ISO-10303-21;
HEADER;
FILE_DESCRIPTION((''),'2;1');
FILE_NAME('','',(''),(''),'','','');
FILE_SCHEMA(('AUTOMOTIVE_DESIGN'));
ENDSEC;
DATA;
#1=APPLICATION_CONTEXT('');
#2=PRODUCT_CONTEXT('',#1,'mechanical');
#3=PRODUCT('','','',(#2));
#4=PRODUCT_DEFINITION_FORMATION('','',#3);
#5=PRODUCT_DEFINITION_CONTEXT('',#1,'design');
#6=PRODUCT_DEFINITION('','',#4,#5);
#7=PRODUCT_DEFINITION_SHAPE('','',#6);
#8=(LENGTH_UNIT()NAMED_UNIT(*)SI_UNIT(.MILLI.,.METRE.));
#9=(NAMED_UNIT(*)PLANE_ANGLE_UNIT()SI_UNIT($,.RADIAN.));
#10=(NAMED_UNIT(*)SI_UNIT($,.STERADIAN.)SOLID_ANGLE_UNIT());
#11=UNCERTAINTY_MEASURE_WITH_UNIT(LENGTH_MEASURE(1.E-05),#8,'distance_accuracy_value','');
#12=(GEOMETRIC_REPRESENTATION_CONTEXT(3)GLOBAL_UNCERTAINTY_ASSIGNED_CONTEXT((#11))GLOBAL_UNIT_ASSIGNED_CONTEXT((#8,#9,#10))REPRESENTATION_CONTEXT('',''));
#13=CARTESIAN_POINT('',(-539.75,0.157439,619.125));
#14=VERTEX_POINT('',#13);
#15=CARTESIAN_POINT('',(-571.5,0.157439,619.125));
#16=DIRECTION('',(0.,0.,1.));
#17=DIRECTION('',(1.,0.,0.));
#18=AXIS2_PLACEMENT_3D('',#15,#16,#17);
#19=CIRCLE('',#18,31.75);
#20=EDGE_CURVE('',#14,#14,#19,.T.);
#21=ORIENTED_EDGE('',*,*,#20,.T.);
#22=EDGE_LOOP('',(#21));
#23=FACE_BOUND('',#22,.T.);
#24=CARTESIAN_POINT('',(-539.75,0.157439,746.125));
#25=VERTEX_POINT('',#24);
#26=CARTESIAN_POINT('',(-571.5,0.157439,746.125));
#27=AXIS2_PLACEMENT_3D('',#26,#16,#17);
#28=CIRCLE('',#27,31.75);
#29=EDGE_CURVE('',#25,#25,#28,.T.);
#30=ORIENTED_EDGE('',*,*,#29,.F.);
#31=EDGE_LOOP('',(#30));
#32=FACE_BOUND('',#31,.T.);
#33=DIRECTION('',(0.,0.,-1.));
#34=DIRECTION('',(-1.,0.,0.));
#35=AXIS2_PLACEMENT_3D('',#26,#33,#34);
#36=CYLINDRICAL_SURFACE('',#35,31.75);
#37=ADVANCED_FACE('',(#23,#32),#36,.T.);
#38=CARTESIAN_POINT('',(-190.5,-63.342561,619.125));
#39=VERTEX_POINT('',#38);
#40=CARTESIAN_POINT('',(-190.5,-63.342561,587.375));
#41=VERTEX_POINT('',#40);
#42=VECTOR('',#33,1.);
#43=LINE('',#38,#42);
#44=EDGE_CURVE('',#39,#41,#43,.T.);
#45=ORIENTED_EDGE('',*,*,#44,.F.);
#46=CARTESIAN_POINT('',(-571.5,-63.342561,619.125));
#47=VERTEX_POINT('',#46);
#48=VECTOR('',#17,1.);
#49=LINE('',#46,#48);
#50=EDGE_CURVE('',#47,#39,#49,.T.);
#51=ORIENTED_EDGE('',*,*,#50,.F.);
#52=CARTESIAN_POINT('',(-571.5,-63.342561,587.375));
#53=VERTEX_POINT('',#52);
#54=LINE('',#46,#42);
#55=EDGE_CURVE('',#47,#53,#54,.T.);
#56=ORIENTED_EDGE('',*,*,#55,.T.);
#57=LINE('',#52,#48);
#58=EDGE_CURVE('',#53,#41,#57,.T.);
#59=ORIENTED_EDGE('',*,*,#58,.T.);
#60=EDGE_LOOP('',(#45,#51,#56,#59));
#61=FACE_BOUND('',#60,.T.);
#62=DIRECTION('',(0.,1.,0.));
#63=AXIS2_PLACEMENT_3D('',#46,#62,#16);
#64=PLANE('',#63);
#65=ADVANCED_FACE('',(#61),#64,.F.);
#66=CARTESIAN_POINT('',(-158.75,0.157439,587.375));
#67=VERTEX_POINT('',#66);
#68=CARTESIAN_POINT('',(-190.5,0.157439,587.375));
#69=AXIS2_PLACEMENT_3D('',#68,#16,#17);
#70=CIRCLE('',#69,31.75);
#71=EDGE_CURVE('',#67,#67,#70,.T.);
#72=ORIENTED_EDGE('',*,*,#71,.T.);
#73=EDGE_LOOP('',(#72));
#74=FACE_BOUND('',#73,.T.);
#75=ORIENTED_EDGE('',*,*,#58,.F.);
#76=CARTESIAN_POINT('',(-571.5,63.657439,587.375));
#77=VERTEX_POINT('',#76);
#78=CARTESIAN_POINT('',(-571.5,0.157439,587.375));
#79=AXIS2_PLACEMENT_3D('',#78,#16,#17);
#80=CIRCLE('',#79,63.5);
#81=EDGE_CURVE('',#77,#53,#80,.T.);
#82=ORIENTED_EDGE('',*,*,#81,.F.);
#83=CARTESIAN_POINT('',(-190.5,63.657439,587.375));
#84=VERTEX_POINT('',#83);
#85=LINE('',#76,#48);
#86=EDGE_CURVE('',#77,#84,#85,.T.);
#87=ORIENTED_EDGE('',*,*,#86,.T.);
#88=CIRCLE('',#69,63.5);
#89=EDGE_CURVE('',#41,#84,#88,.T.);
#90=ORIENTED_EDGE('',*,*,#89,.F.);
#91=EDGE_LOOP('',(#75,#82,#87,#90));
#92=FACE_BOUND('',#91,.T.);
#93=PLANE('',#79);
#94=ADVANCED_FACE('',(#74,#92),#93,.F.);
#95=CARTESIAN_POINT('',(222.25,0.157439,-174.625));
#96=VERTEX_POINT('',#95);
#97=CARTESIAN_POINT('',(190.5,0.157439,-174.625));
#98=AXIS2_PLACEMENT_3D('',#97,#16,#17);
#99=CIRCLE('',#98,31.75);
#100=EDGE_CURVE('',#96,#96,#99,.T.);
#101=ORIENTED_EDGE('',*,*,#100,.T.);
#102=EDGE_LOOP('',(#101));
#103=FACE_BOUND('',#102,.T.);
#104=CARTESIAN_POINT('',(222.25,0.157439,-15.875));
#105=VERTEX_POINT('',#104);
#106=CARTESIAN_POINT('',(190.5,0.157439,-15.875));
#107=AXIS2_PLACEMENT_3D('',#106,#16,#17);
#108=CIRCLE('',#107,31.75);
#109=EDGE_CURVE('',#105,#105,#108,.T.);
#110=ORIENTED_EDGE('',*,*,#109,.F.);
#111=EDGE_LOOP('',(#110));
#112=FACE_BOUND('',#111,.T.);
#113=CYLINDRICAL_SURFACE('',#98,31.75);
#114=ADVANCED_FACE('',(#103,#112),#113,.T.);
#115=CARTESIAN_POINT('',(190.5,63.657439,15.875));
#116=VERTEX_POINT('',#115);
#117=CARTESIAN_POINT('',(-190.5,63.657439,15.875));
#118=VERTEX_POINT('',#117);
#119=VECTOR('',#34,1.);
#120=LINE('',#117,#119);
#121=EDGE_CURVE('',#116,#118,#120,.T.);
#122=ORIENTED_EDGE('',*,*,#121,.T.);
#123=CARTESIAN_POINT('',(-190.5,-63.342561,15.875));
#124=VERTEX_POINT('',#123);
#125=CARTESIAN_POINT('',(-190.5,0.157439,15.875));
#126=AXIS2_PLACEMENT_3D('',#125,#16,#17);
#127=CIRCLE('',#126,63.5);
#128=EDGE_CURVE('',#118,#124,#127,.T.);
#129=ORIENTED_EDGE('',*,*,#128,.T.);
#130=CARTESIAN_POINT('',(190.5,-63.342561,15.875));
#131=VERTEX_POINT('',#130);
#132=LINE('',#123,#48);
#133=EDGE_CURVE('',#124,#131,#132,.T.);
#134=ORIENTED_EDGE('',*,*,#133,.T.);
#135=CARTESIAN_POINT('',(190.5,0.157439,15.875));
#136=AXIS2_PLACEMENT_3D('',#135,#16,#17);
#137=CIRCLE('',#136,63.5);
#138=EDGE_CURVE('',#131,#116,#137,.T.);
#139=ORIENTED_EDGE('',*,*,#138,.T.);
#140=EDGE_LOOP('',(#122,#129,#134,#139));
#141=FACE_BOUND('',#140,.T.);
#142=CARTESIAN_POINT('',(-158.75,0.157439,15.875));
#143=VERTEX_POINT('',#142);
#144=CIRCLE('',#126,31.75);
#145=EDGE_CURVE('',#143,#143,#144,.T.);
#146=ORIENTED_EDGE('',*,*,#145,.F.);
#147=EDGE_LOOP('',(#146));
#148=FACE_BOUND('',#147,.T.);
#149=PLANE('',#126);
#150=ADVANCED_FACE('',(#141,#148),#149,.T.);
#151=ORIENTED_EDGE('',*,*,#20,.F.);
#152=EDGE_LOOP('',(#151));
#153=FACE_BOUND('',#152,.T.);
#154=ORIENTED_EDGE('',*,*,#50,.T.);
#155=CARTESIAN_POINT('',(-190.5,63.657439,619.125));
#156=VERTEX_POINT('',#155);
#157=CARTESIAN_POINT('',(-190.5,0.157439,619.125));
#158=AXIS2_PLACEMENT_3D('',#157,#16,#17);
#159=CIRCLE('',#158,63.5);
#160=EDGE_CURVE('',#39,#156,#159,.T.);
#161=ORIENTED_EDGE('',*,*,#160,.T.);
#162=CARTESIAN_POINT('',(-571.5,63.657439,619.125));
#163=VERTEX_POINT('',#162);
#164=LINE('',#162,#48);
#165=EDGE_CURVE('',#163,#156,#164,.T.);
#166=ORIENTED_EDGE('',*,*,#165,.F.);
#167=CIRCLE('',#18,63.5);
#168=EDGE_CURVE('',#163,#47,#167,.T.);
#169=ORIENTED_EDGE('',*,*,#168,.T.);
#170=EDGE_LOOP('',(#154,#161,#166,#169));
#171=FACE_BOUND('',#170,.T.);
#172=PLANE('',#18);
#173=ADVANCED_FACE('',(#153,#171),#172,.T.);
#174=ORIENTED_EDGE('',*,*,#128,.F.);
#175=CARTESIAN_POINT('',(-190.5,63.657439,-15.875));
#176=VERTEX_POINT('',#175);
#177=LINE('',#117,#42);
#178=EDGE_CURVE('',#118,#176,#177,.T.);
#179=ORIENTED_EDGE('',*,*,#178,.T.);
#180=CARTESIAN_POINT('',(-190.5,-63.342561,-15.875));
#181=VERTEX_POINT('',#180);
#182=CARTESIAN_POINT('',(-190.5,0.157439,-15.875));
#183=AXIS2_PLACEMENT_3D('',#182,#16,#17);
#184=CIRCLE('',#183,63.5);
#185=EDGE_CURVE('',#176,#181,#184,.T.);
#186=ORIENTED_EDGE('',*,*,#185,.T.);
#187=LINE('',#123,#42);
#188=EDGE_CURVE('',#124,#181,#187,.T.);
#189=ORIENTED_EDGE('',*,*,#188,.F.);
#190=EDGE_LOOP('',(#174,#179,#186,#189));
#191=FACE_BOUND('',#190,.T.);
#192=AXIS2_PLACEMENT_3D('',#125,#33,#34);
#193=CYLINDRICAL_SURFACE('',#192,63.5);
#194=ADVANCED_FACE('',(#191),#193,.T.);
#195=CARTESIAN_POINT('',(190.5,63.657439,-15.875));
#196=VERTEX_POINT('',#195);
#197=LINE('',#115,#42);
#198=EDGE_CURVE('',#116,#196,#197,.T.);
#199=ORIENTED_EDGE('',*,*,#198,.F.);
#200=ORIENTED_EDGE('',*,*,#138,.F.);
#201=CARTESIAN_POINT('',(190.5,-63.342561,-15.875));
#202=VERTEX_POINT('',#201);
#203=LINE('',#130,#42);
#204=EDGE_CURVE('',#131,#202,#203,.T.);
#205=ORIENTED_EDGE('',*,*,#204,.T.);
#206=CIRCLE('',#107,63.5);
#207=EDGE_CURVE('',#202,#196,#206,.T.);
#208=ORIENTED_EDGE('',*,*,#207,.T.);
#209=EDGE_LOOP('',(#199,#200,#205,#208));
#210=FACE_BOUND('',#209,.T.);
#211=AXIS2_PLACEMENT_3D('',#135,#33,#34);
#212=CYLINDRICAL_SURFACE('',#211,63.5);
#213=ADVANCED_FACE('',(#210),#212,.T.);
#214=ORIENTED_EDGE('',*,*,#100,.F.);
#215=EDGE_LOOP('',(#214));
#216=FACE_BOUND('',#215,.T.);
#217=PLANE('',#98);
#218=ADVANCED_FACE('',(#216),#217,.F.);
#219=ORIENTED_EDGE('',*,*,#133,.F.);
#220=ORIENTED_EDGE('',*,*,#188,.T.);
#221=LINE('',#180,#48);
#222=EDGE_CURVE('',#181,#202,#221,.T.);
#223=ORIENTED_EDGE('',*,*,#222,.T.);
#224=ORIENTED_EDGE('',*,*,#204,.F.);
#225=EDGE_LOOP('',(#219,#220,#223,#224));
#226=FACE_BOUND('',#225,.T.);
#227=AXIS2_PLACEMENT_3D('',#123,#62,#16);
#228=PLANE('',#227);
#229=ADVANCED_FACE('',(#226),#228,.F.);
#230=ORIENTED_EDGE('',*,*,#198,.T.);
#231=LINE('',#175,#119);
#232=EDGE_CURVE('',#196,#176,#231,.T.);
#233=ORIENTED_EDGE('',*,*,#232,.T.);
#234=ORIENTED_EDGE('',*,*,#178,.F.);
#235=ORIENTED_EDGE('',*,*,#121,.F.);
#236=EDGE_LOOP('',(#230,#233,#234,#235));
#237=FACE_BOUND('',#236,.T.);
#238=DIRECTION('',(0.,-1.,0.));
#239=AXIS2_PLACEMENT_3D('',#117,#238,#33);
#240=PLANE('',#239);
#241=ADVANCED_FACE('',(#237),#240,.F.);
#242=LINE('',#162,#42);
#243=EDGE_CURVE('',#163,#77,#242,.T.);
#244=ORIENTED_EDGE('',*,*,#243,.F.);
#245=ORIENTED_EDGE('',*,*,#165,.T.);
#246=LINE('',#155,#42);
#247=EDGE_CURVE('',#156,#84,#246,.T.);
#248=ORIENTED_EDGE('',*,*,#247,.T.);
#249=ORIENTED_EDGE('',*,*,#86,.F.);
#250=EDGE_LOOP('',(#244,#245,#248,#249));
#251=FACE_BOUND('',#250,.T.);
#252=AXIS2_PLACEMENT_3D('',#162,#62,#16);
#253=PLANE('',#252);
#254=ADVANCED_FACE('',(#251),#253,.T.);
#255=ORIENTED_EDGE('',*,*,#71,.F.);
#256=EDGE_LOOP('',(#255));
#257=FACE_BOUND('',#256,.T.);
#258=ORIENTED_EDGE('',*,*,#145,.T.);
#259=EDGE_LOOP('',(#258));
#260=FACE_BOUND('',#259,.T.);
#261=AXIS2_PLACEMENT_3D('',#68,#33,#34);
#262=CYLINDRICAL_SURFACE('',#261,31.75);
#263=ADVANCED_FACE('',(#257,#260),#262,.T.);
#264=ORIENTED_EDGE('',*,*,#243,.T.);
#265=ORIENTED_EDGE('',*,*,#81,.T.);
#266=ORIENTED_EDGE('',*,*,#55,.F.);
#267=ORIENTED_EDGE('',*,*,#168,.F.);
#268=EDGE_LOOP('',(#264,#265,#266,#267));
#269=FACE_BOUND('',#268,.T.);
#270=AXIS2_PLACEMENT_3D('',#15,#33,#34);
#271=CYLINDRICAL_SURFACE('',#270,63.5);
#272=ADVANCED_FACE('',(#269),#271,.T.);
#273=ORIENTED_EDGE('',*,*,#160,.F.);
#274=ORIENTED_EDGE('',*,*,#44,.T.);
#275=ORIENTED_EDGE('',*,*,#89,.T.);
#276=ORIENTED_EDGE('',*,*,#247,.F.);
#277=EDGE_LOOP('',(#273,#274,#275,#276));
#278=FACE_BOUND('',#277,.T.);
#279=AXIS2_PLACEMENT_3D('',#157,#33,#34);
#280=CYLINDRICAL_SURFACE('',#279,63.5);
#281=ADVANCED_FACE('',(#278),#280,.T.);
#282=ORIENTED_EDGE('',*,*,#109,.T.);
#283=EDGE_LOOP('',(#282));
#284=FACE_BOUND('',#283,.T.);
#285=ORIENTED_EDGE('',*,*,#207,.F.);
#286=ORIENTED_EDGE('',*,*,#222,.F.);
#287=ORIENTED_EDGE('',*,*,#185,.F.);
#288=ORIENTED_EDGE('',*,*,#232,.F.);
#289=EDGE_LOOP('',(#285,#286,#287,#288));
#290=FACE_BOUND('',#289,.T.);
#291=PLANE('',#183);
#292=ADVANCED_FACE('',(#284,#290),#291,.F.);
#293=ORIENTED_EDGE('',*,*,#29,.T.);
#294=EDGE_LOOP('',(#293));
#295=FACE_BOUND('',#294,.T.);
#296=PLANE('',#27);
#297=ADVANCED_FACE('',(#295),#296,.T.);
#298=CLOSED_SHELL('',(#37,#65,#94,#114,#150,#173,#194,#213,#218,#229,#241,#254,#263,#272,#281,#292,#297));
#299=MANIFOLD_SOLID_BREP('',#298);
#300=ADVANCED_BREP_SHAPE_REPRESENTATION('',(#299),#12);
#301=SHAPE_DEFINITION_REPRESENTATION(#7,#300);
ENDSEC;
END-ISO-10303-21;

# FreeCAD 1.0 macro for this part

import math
import FreeCAD as App
import Part
import Sketcher

V = App.Vector
Q = App.Units.Quantity

doc = App.newDocument("Part")
body = doc.addObject("PartDesign::Body", "Body")

# Sketch on XY plane
sketch1 = body.newObject("Sketcher::SketchObject", "Sketch")
sketch1.AttachmentSupport = (doc.getObject("XY_Plane"), [""])
sketch1.MapMode = "FlatFace"
sketch1.addGeometry([
    Part.LineSegment(V(190, 64, 0), V(-190, 64, 0)),  # 0
    Part.ArcOfCircle(Part.Circle(V(-190, 0, 0), V(0, 0, 1), 64), math.radians(90), math.radians(270)),  # 1
    Part.LineSegment(V(-190, -63, 0), V(190, -63, 0)),  # 2
    Part.ArcOfCircle(Part.Circle(V(190, 0, 0), V(0, 0, 1), 64), math.radians(-90), math.radians(90)),  # 3
    Part.Circle(V(190, 0, 0), V(0, 0, 1), 32),  # 4
], False)
sketch1.addConstraint([
    Sketcher.Constraint("Tangent", 0, 2, 1, 1),
    Sketcher.Constraint("Tangent", 1, 2, 2, 1),
    Sketcher.Constraint("Tangent", 2, 2, 3, 1),
    Sketcher.Constraint("Tangent", 3, 2, 0, 1),
    Sketcher.Constraint("Horizontal", 0),
    Sketcher.Constraint("Horizontal", 2),
    Sketcher.Constraint("Coincident", 4, 3, 3, 3),
    Sketcher.Constraint("Diameter", 4, Q("2.5 in")),
    Sketcher.Constraint("Radius", 1, Q("2.5 in")),
    Sketcher.Constraint("DistanceX", 0, 2, 0, 1, Q("15 in")),
    Sketcher.Constraint("DistanceX", 1, 3, -1, 1, Q("7.5 in")),
    Sketcher.Constraint("DistanceY", -1, 1, 1, 3, Q("0.157439 mm")),
])
pad1 = body.newObject("PartDesign::Pad", "Pad")
pad1.Profile = sketch1
pad1.Length = Q("1.25 in")
pad1.Midplane = True

# Sketch on XY plane
sketch2 = body.newObject("Sketcher::SketchObject", "Sketch001")
sketch2.AttachmentSupport = (doc.getObject("XY_Plane"), [""])
sketch2.MapMode = "FlatFace"
sketch2.AttachmentOffset = App.Placement(V(0, 0, 0.625 * 25.4), App.Rotation())
sketch2.addGeometry(Part.Circle(V(-190, 0, 0), V(0, 0, 1), 32), False)
sketch2.addConstraint([
    Sketcher.Constraint("Diameter", 0, Q("2.5 in")),
    Sketcher.Constraint("DistanceX", 0, 3, -1, 1, Q("7.5 in")),
    Sketcher.Constraint("DistanceY", -1, 1, 0, 3, Q("0.157439 mm")),
])
pad2 = body.newObject("PartDesign::Pad", "Pad001")
pad2.Profile = sketch2
pad2.Length = Q("22.5 in")

# Sketch on XY plane
sketch3 = body.newObject("Sketcher::SketchObject", "Sketch002")
sketch3.AttachmentSupport = (doc.getObject("XY_Plane"), [""])
sketch3.MapMode = "FlatFace"
sketch3.AttachmentOffset = App.Placement(V(0, 0, -6.875 * 25.4), App.Rotation())
sketch3.addGeometry(Part.Circle(V(190, 0, 0), V(0, 0, 1), 32), False)
sketch3.addConstraint([
    Sketcher.Constraint("Diameter", 0, Q("2.5 in")),
    Sketcher.Constraint("DistanceX", -1, 1, 0, 3, Q("7.5 in")),
    Sketcher.Constraint("DistanceY", -1, 1, 0, 3, Q("0.157439 mm")),
])
pad3 = body.newObject("PartDesign::Pad", "Pad002")
pad3.Profile = sketch3
pad3.Length = Q("7.5 in")

# Sketch on XY plane
sketch4 = body.newObject("Sketcher::SketchObject", "Sketch003")
sketch4.AttachmentSupport = (doc.getObject("XY_Plane"), [""])
sketch4.MapMode = "FlatFace"
sketch4.AttachmentOffset = App.Placement(V(0, 0, 24.375 * 25.4), App.Rotation())
sketch4.addGeometry([
    Part.LineSegment(V(-190, 64, 0), V(-572, 64, 0)),
    Part.ArcOfCircle(Part.Circle(V(-572, 0, 0), V(0, 0, 1), 64), math.radians(90), math.radians(270)),
    Part.LineSegment(V(-572, -63, 0), V(-190, -63, 0)),
    Part.ArcOfCircle(Part.Circle(V(-190, 0, 0), V(0, 0, 1), 64), math.radians(-90), math.radians(90)),
], False)
sketch4.addConstraint([
    Sketcher.Constraint("Tangent", 0, 2, 1, 1),
    Sketcher.Constraint("Tangent", 1, 2, 2, 1),
    Sketcher.Constraint("Tangent", 2, 2, 3, 1),
    Sketcher.Constraint("Tangent", 3, 2, 0, 1),
    Sketcher.Constraint("Horizontal", 0),
    Sketcher.Constraint("Horizontal", 2),
    Sketcher.Constraint("Radius", 1, Q("2.5 in")),
    Sketcher.Constraint("DistanceX", 0, 2, 0, 1, Q("15 in")),
    Sketcher.Constraint("DistanceX", 1, 3, -1, 1, Q("22.5 in")),
    Sketcher.Constraint("DistanceY", -1, 1, 1, 3, Q("0.157439 mm")),
])
pad4 = body.newObject("PartDesign::Pad", "Pad003")
pad4.Profile = sketch4
pad4.Length = Q("1.25 in")
pad4.Reversed = True

# Sketch on XY plane
sketch5 = body.newObject("Sketcher::SketchObject", "Sketch004")
sketch5.AttachmentSupport = (doc.getObject("XY_Plane"), [""])
sketch5.MapMode = "FlatFace"
sketch5.AttachmentOffset = App.Placement(V(0, 0, 24.375 * 25.4), App.Rotation())
sketch5.addGeometry(Part.Circle(V(-572, 0, 0), V(0, 0, 1), 32), False)
sketch5.addConstraint([
    Sketcher.Constraint("Diameter", 0, Q("2.5 in")),
    Sketcher.Constraint("DistanceX", 0, 3, -1, 1, Q("22.5 in")),
    Sketcher.Constraint("DistanceY", -1, 1, 0, 3, Q("0.157439 mm")),
])
pad5 = body.newObject("PartDesign::Pad", "Pad004")
pad5.Profile = sketch5
pad5.Length = Q("5 in")

doc.recompute()
